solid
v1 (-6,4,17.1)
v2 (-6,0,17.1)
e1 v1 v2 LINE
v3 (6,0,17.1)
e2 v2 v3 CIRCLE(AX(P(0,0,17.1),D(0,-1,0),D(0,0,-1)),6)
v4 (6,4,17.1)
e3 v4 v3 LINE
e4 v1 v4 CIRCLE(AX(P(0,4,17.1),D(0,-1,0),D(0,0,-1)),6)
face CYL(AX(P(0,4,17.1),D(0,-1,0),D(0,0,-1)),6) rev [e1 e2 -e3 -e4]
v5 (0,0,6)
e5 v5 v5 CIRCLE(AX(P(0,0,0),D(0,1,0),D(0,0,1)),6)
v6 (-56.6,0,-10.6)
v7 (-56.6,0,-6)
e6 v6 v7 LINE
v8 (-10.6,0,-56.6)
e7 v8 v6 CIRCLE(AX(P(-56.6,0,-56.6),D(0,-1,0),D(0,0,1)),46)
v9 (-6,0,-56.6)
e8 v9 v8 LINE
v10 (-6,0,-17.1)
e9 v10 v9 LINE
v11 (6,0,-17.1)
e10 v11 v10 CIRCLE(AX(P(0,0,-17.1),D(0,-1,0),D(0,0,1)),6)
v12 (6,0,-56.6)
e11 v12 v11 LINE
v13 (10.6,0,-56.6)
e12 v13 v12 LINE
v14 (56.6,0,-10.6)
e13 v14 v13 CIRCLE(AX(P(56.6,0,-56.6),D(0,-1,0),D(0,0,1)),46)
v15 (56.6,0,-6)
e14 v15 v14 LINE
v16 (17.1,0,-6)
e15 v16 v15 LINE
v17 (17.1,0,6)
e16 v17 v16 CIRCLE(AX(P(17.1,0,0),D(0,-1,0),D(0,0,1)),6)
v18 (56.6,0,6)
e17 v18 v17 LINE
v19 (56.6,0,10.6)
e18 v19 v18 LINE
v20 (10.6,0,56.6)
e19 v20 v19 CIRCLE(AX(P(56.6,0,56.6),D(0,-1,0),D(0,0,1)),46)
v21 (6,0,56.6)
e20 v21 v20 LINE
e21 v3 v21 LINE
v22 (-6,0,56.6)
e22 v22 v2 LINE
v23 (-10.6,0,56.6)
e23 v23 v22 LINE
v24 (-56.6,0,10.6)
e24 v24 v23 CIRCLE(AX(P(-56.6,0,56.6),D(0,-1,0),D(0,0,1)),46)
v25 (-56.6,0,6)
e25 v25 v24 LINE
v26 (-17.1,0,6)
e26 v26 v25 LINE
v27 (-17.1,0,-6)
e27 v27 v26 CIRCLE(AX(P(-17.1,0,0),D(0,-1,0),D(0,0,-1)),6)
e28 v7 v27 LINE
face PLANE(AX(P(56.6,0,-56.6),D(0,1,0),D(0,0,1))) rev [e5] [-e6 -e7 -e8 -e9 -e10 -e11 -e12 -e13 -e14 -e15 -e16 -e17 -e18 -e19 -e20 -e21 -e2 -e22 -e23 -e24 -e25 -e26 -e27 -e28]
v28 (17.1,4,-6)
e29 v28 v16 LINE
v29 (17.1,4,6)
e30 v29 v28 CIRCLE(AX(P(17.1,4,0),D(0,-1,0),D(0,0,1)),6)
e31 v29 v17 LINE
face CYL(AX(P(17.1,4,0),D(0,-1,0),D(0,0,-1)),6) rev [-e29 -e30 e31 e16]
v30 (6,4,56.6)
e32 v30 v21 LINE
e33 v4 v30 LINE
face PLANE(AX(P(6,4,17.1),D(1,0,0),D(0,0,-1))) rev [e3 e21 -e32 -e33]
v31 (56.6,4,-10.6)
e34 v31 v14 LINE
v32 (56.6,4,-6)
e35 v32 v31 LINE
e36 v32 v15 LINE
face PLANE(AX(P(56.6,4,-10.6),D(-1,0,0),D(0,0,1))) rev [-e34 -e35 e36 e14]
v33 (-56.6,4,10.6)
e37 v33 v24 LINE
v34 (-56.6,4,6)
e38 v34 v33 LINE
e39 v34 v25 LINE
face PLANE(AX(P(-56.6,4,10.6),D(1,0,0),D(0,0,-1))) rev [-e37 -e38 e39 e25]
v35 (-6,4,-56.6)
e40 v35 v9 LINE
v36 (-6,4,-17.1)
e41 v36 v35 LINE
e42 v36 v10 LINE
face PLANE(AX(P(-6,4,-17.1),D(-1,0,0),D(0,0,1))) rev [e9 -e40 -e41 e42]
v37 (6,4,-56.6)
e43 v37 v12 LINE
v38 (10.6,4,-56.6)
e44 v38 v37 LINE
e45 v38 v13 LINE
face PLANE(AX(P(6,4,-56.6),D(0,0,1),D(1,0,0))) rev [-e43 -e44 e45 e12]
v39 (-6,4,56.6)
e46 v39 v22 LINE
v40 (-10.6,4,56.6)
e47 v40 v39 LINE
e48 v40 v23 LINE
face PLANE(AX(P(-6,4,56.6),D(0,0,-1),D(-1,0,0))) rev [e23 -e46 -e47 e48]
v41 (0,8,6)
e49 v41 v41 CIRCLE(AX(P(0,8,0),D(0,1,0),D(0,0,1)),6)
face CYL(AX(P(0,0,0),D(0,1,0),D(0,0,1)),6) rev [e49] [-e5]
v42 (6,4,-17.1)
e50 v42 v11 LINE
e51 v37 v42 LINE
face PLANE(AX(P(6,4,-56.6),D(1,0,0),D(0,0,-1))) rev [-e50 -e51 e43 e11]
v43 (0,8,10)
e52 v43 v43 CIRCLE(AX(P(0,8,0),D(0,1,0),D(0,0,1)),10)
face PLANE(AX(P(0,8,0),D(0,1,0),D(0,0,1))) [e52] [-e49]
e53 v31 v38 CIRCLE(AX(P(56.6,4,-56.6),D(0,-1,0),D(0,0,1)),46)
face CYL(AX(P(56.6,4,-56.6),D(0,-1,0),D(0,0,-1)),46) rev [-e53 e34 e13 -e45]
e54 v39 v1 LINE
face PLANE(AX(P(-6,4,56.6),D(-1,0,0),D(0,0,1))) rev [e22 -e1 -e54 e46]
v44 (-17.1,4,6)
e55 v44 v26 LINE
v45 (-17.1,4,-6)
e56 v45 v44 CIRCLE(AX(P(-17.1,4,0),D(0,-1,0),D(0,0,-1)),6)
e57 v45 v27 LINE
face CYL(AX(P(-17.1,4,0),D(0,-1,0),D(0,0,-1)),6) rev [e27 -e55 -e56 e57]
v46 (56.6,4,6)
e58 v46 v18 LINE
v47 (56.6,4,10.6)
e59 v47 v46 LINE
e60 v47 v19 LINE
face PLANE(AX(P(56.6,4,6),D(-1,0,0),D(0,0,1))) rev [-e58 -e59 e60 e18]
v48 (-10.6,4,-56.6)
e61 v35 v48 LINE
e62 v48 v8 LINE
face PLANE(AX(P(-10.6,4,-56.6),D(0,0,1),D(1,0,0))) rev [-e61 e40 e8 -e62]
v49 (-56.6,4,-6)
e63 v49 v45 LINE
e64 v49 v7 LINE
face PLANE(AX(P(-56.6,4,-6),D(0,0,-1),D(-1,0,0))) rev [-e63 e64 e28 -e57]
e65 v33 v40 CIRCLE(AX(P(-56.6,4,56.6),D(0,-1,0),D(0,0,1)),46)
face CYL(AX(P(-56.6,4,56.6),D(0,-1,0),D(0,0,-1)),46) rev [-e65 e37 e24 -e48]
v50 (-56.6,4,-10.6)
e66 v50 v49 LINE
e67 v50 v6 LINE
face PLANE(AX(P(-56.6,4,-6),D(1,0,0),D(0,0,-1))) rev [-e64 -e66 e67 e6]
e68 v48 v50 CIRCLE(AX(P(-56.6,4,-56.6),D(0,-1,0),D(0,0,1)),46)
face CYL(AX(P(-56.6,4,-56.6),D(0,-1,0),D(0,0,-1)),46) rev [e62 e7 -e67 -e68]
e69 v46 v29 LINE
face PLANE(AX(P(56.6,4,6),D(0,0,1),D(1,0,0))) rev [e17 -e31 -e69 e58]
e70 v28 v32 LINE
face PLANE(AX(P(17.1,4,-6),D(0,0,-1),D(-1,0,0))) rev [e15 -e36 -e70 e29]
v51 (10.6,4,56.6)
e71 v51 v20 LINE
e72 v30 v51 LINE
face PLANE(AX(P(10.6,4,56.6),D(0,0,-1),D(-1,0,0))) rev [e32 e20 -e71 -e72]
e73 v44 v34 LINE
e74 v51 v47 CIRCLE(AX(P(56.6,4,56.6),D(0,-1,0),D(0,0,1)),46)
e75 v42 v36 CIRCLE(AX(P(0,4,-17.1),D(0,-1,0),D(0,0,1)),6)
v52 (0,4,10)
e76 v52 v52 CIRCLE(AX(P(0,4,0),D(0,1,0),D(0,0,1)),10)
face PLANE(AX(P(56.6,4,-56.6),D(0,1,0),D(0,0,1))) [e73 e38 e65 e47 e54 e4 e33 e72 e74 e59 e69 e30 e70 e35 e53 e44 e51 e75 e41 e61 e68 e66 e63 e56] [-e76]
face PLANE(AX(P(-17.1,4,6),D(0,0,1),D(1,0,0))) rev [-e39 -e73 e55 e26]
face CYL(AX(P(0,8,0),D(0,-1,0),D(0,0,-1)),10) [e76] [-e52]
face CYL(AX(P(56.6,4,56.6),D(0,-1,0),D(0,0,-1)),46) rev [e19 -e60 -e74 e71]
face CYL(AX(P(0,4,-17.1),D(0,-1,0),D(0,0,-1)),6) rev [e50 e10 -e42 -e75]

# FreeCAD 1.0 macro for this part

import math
import FreeCAD as App
import Part
import Sketcher
from FreeCAD import Vector
Q = App.Units.Quantity

doc = App.newDocument("Part")
body = doc.addObject("PartDesign::Body", "Body")

# Sketch on XZ plane
sketch1 = body.newObject("Sketcher::SketchObject", "Sketch")
sketch1.AttachmentSupport = (doc.getObject("XZ_Plane"), [""])
sketch1.MapMode = "FlatFace"
sketch1.addGeometry(Part.LineSegment(Vector(6, -56.6, 0), Vector(6, -17.1, 0)), False)
sketch1.addGeometry(Part.ArcOfCircle(Part.Circle(Vector(0, -17.1, 0), Vector(0, 0, 1), 6), math.radians(0), math.radians(180)), False)
sketch1.addGeometry(Part.LineSegment(Vector(-6, -17.1, 0), Vector(-6, -56.6, 0)), False)
sketch1.addGeometry(Part.LineSegment(Vector(-6, -56.6, 0), Vector(-10.6, -56.6, 0)), False)
sketch1.addGeometry(Part.ArcOfCircle(Part.Circle(Vector(-56.6, -56.6, 0), Vector(0, 0, 1), 46), math.radians(0), math.radians(90)), False)
sketch1.addGeometry(Part.LineSegment(Vector(-56.6, -10.6, 0), Vector(-56.6, -6, 0)), False)
sketch1.addGeometry(Part.LineSegment(Vector(-56.6, -6, 0), Vector(-17.1, -6, 0)), False)
sketch1.addGeometry(Part.ArcOfCircle(Part.Circle(Vector(-17.1, 0, 0), Vector(0, 0, 1), 6), math.radians(-90), math.radians(90)), False)
sketch1.addGeometry(Part.LineSegment(Vector(-17.1, 6, 0), Vector(-56.6, 6, 0)), False)
sketch1.addGeometry(Part.LineSegment(Vector(-56.6, 6, 0), Vector(-56.6, 10.6, 0)), False)
sketch1.addGeometry(Part.ArcOfCircle(Part.Circle(Vector(-56.6, 56.6, 0), Vector(0, 0, 1), 46), math.radians(-90), math.radians(0)), False)
sketch1.addGeometry(Part.LineSegment(Vector(-10.6, 56.6, 0), Vector(-6, 56.6, 0)), False)
sketch1.addGeometry(Part.LineSegment(Vector(-6, 56.6, 0), Vector(-6, 17.1, 0)), False)
sketch1.addGeometry(Part.ArcOfCircle(Part.Circle(Vector(0, 17.1, 0), Vector(0, 0, 1), 6), math.radians(180), math.radians(360)), False)
sketch1.addGeometry(Part.LineSegment(Vector(6, 17.1, 0), Vector(6, 56.6, 0)), False)
sketch1.addGeometry(Part.LineSegment(Vector(6, 56.6, 0), Vector(10.6, 56.6, 0)), False)
sketch1.addGeometry(Part.ArcOfCircle(Part.Circle(Vector(56.6, 56.6, 0), Vector(0, 0, 1), 46), math.radians(180), math.radians(270)), False)
sketch1.addGeometry(Part.LineSegment(Vector(56.6, 10.6, 0), Vector(56.6, 6, 0)), False)
sketch1.addGeometry(Part.LineSegment(Vector(56.6, 6, 0), Vector(17.1, 6, 0)), False)
sketch1.addGeometry(Part.ArcOfCircle(Part.Circle(Vector(17.1, 0, 0), Vector(0, 0, 1), 6), math.radians(90), math.radians(270)), False)
sketch1.addGeometry(Part.LineSegment(Vector(17.1, -6, 0), Vector(56.6, -6, 0)), False)
sketch1.addGeometry(Part.LineSegment(Vector(56.6, -6, 0), Vector(56.6, -10.6, 0)), False)
sketch1.addGeometry(Part.ArcOfCircle(Part.Circle(Vector(56.6, -56.6, 0), Vector(0, 0, 1), 46), math.radians(90), math.radians(180)), False)
sketch1.addGeometry(Part.LineSegment(Vector(10.6, -56.6, 0), Vector(6, -56.6, 0)), False)
sketch1.addConstraint(Sketcher.Constraint("Tangent", 0, 2, 1, 1))
sketch1.addConstraint(Sketcher.Constraint("Tangent", 1, 2, 2, 1))
sketch1.addConstraint(Sketcher.Constraint("Coincident", 2, 2, 3, 1))
sketch1.addConstraint(Sketcher.Constraint("Coincident", 3, 2, 4, 1))
sketch1.addConstraint(Sketcher.Constraint("Coincident", 4, 2, 5, 1))
sketch1.addConstraint(Sketcher.Constraint("Coincident", 5, 2, 6, 1))
sketch1.addConstraint(Sketcher.Constraint("Tangent", 6, 2, 7, 1))
sketch1.addConstraint(Sketcher.Constraint("Tangent", 7, 2, 8, 1))
sketch1.addConstraint(Sketcher.Constraint("Coincident", 8, 2, 9, 1))
sketch1.addConstraint(Sketcher.Constraint("Coincident", 9, 2, 10, 1))
sketch1.addConstraint(Sketcher.Constraint("Coincident", 10, 2, 11, 1))
sketch1.addConstraint(Sketcher.Constraint("Coincident", 11, 2, 12, 1))
sketch1.addConstraint(Sketcher.Constraint("Tangent", 12, 2, 13, 1))
sketch1.addConstraint(Sketcher.Constraint("Tangent", 13, 2, 14, 1))
sketch1.addConstraint(Sketcher.Constraint("Coincident", 14, 2, 15, 1))
sketch1.addConstraint(Sketcher.Constraint("Coincident", 15, 2, 16, 1))
sketch1.addConstraint(Sketcher.Constraint("Coincident", 16, 2, 17, 1))
sketch1.addConstraint(Sketcher.Constraint("Coincident", 17, 2, 18, 1))
sketch1.addConstraint(Sketcher.Constraint("Tangent", 18, 2, 19, 1))
sketch1.addConstraint(Sketcher.Constraint("Tangent", 19, 2, 20, 1))
sketch1.addConstraint(Sketcher.Constraint("Coincident", 20, 2, 21, 1))
sketch1.addConstraint(Sketcher.Constraint("Coincident", 21, 2, 22, 1))
sketch1.addConstraint(Sketcher.Constraint("Coincident", 22, 2, 23, 1))
sketch1.addConstraint(Sketcher.Constraint("Coincident", 23, 2, 0, 1))
sketch1.addConstraint(Sketcher.Constraint("Vertical", 0))
sketch1.addConstraint(Sketcher.Constraint("Vertical", 2))
sketch1.addConstraint(Sketcher.Constraint("Horizontal", 3))
sketch1.addConstraint(Sketcher.Constraint("Vertical", 5))
sketch1.addConstraint(Sketcher.Constraint("Horizontal", 6))
sketch1.addConstraint(Sketcher.Constraint("Horizontal", 8))
sketch1.addConstraint(Sketcher.Constraint("Vertical", 9))
sketch1.addConstraint(Sketcher.Constraint("Horizontal", 11))
sketch1.addConstraint(Sketcher.Constraint("Vertical", 12))
sketch1.addConstraint(Sketcher.Constraint("Vertical", 14))
sketch1.addConstraint(Sketcher.Constraint("Horizontal", 15))
sketch1.addConstraint(Sketcher.Constraint("Vertical", 17))
sketch1.addConstraint(Sketcher.Constraint("Horizontal", 18))
sketch1.addConstraint(Sketcher.Constraint("Horizontal", 20))
sketch1.addConstraint(Sketcher.Constraint("Vertical", 21))
sketch1.addConstraint(Sketcher.Constraint("Horizontal", 23))
sketch1.addConstraint(Sketcher.Constraint("Equal", 1, 7))
sketch1.addConstraint(Sketcher.Constraint("Equal", 4, 10))
sketch1.addConstraint(Sketcher.Constraint("Equal", 7, 13))
sketch1.addConstraint(Sketcher.Constraint("Equal", 10, 16))
sketch1.addConstraint(Sketcher.Constraint("Equal", 13, 19))
sketch1.addConstraint(Sketcher.Constraint("Equal", 16, 22))
sketch1.addConstraint(Sketcher.Constraint("Symmetric", 1, 3, 13, 3, -1, 1))
sketch1.addConstraint(Sketcher.Constraint("Symmetric", 4, 3, 16, 3, -1, 1))
sketch1.addConstraint(Sketcher.Constraint("Symmetric", 7, 3, 19, 3, -1, 1))
sketch1.addConstraint(Sketcher.Constraint("Symmetric", 10, 3, 22, 3, -1, 1))
sketch1.addConstraint(Sketcher.Constraint("Symmetric", 10, 3, 16, 3, -2))
sketch1.addConstraint(Sketcher.Constraint("Symmetric", 11, 2, 14, 2, -2))
sketch1.addConstraint(Sketcher.Constraint("Symmetric", 8, 2, 17, 2, -2))
sketch1.addConstraint(Sketcher.Constraint("Horizontal", 22, 3, 2, 2))
sketch1.addConstraint(Sketcher.Constraint("Horizontal", 16, 3, 10, 2))
sketch1.addConstraint(Sketcher.Constraint("Horizontal", 3, 2, 22, 2))
sketch1.addConstraint(Sketcher.Constraint("Vertical", 10, 3, 4, 2))
sketch1.addConstraint(Sketcher.Constraint("Vertical", 5, 2, 8, 2))
sketch1.addConstraint(Sketcher.Constraint("Vertical", 17, 2, 20, 2))
sketch1.addConstraint(Sketcher.Constraint("Equal", 20, 0))
sketch1.addConstraint(Sketcher.Constraint("Equal", 23, 5))
sketch1.addConstraint(Sketcher.Constraint("Radius", 1, Q("6 mm")))
sketch1.addConstraint(Sketcher.Constraint("Radius", 4, Q("46 mm")))
sketch1.addConstraint(Sketcher.Constraint("DistanceX", 3, 2, 3, 1, Q("4.6 mm")))
sketch1.addConstraint(Sketcher.Constraint("DistanceX", 6, 1, 6, 2, Q("39.5 mm")))
pad1 = body.newObject("PartDesign::Pad", "Pad")
pad1.Profile = sketch1
pad1.Length = 4
pad1.Reversed = True

# Sketch on XZ plane
sketch2 = body.newObject("Sketcher::SketchObject", "Sketch001")
sketch2.AttachmentSupport = (doc.getObject("XZ_Plane"), [""])
sketch2.MapMode = "FlatFace"
sketch2.AttachmentOffset = App.Placement(Vector(0, 0, -4), App.Rotation())
sketch2.addGeometry(Part.Circle(Vector(0, 0, 0), Vector(0, 0, 1), 10), False)
sketch2.addConstraint(Sketcher.Constraint("Coincident", 0, 3, -1, 1))
sketch2.addConstraint(Sketcher.Constraint("Diameter", 0, Q("20 mm")))
pad2 = body.newObject("PartDesign::Pad", "Pad001")
pad2.Profile = sketch2
pad2.Length = 4
pad2.Reversed = True

# Sketch on XZ plane
sketch3 = body.newObject("Sketcher::SketchObject", "Sketch002")
sketch3.AttachmentSupport = (doc.getObject("XZ_Plane"), [""])
sketch3.MapMode = "FlatFace"
sketch3.AttachmentOffset = App.Placement(Vector(0, 0, -8), App.Rotation())
sketch3.addGeometry(Part.Circle(Vector(0, 0, 0), Vector(0, 0, 1), 6), False)
sketch3.addConstraint(Sketcher.Constraint("Coincident", 0, 3, -1, 1))
sketch3.addConstraint(Sketcher.Constraint("Diameter", 0, Q("12 mm")))
pocket1 = body.newObject("PartDesign::Pocket", "Pocket")
pocket1.Profile = sketch3
pocket1.Type = "ThroughAll"
pocket1.Reversed = True

doc.recompute()
